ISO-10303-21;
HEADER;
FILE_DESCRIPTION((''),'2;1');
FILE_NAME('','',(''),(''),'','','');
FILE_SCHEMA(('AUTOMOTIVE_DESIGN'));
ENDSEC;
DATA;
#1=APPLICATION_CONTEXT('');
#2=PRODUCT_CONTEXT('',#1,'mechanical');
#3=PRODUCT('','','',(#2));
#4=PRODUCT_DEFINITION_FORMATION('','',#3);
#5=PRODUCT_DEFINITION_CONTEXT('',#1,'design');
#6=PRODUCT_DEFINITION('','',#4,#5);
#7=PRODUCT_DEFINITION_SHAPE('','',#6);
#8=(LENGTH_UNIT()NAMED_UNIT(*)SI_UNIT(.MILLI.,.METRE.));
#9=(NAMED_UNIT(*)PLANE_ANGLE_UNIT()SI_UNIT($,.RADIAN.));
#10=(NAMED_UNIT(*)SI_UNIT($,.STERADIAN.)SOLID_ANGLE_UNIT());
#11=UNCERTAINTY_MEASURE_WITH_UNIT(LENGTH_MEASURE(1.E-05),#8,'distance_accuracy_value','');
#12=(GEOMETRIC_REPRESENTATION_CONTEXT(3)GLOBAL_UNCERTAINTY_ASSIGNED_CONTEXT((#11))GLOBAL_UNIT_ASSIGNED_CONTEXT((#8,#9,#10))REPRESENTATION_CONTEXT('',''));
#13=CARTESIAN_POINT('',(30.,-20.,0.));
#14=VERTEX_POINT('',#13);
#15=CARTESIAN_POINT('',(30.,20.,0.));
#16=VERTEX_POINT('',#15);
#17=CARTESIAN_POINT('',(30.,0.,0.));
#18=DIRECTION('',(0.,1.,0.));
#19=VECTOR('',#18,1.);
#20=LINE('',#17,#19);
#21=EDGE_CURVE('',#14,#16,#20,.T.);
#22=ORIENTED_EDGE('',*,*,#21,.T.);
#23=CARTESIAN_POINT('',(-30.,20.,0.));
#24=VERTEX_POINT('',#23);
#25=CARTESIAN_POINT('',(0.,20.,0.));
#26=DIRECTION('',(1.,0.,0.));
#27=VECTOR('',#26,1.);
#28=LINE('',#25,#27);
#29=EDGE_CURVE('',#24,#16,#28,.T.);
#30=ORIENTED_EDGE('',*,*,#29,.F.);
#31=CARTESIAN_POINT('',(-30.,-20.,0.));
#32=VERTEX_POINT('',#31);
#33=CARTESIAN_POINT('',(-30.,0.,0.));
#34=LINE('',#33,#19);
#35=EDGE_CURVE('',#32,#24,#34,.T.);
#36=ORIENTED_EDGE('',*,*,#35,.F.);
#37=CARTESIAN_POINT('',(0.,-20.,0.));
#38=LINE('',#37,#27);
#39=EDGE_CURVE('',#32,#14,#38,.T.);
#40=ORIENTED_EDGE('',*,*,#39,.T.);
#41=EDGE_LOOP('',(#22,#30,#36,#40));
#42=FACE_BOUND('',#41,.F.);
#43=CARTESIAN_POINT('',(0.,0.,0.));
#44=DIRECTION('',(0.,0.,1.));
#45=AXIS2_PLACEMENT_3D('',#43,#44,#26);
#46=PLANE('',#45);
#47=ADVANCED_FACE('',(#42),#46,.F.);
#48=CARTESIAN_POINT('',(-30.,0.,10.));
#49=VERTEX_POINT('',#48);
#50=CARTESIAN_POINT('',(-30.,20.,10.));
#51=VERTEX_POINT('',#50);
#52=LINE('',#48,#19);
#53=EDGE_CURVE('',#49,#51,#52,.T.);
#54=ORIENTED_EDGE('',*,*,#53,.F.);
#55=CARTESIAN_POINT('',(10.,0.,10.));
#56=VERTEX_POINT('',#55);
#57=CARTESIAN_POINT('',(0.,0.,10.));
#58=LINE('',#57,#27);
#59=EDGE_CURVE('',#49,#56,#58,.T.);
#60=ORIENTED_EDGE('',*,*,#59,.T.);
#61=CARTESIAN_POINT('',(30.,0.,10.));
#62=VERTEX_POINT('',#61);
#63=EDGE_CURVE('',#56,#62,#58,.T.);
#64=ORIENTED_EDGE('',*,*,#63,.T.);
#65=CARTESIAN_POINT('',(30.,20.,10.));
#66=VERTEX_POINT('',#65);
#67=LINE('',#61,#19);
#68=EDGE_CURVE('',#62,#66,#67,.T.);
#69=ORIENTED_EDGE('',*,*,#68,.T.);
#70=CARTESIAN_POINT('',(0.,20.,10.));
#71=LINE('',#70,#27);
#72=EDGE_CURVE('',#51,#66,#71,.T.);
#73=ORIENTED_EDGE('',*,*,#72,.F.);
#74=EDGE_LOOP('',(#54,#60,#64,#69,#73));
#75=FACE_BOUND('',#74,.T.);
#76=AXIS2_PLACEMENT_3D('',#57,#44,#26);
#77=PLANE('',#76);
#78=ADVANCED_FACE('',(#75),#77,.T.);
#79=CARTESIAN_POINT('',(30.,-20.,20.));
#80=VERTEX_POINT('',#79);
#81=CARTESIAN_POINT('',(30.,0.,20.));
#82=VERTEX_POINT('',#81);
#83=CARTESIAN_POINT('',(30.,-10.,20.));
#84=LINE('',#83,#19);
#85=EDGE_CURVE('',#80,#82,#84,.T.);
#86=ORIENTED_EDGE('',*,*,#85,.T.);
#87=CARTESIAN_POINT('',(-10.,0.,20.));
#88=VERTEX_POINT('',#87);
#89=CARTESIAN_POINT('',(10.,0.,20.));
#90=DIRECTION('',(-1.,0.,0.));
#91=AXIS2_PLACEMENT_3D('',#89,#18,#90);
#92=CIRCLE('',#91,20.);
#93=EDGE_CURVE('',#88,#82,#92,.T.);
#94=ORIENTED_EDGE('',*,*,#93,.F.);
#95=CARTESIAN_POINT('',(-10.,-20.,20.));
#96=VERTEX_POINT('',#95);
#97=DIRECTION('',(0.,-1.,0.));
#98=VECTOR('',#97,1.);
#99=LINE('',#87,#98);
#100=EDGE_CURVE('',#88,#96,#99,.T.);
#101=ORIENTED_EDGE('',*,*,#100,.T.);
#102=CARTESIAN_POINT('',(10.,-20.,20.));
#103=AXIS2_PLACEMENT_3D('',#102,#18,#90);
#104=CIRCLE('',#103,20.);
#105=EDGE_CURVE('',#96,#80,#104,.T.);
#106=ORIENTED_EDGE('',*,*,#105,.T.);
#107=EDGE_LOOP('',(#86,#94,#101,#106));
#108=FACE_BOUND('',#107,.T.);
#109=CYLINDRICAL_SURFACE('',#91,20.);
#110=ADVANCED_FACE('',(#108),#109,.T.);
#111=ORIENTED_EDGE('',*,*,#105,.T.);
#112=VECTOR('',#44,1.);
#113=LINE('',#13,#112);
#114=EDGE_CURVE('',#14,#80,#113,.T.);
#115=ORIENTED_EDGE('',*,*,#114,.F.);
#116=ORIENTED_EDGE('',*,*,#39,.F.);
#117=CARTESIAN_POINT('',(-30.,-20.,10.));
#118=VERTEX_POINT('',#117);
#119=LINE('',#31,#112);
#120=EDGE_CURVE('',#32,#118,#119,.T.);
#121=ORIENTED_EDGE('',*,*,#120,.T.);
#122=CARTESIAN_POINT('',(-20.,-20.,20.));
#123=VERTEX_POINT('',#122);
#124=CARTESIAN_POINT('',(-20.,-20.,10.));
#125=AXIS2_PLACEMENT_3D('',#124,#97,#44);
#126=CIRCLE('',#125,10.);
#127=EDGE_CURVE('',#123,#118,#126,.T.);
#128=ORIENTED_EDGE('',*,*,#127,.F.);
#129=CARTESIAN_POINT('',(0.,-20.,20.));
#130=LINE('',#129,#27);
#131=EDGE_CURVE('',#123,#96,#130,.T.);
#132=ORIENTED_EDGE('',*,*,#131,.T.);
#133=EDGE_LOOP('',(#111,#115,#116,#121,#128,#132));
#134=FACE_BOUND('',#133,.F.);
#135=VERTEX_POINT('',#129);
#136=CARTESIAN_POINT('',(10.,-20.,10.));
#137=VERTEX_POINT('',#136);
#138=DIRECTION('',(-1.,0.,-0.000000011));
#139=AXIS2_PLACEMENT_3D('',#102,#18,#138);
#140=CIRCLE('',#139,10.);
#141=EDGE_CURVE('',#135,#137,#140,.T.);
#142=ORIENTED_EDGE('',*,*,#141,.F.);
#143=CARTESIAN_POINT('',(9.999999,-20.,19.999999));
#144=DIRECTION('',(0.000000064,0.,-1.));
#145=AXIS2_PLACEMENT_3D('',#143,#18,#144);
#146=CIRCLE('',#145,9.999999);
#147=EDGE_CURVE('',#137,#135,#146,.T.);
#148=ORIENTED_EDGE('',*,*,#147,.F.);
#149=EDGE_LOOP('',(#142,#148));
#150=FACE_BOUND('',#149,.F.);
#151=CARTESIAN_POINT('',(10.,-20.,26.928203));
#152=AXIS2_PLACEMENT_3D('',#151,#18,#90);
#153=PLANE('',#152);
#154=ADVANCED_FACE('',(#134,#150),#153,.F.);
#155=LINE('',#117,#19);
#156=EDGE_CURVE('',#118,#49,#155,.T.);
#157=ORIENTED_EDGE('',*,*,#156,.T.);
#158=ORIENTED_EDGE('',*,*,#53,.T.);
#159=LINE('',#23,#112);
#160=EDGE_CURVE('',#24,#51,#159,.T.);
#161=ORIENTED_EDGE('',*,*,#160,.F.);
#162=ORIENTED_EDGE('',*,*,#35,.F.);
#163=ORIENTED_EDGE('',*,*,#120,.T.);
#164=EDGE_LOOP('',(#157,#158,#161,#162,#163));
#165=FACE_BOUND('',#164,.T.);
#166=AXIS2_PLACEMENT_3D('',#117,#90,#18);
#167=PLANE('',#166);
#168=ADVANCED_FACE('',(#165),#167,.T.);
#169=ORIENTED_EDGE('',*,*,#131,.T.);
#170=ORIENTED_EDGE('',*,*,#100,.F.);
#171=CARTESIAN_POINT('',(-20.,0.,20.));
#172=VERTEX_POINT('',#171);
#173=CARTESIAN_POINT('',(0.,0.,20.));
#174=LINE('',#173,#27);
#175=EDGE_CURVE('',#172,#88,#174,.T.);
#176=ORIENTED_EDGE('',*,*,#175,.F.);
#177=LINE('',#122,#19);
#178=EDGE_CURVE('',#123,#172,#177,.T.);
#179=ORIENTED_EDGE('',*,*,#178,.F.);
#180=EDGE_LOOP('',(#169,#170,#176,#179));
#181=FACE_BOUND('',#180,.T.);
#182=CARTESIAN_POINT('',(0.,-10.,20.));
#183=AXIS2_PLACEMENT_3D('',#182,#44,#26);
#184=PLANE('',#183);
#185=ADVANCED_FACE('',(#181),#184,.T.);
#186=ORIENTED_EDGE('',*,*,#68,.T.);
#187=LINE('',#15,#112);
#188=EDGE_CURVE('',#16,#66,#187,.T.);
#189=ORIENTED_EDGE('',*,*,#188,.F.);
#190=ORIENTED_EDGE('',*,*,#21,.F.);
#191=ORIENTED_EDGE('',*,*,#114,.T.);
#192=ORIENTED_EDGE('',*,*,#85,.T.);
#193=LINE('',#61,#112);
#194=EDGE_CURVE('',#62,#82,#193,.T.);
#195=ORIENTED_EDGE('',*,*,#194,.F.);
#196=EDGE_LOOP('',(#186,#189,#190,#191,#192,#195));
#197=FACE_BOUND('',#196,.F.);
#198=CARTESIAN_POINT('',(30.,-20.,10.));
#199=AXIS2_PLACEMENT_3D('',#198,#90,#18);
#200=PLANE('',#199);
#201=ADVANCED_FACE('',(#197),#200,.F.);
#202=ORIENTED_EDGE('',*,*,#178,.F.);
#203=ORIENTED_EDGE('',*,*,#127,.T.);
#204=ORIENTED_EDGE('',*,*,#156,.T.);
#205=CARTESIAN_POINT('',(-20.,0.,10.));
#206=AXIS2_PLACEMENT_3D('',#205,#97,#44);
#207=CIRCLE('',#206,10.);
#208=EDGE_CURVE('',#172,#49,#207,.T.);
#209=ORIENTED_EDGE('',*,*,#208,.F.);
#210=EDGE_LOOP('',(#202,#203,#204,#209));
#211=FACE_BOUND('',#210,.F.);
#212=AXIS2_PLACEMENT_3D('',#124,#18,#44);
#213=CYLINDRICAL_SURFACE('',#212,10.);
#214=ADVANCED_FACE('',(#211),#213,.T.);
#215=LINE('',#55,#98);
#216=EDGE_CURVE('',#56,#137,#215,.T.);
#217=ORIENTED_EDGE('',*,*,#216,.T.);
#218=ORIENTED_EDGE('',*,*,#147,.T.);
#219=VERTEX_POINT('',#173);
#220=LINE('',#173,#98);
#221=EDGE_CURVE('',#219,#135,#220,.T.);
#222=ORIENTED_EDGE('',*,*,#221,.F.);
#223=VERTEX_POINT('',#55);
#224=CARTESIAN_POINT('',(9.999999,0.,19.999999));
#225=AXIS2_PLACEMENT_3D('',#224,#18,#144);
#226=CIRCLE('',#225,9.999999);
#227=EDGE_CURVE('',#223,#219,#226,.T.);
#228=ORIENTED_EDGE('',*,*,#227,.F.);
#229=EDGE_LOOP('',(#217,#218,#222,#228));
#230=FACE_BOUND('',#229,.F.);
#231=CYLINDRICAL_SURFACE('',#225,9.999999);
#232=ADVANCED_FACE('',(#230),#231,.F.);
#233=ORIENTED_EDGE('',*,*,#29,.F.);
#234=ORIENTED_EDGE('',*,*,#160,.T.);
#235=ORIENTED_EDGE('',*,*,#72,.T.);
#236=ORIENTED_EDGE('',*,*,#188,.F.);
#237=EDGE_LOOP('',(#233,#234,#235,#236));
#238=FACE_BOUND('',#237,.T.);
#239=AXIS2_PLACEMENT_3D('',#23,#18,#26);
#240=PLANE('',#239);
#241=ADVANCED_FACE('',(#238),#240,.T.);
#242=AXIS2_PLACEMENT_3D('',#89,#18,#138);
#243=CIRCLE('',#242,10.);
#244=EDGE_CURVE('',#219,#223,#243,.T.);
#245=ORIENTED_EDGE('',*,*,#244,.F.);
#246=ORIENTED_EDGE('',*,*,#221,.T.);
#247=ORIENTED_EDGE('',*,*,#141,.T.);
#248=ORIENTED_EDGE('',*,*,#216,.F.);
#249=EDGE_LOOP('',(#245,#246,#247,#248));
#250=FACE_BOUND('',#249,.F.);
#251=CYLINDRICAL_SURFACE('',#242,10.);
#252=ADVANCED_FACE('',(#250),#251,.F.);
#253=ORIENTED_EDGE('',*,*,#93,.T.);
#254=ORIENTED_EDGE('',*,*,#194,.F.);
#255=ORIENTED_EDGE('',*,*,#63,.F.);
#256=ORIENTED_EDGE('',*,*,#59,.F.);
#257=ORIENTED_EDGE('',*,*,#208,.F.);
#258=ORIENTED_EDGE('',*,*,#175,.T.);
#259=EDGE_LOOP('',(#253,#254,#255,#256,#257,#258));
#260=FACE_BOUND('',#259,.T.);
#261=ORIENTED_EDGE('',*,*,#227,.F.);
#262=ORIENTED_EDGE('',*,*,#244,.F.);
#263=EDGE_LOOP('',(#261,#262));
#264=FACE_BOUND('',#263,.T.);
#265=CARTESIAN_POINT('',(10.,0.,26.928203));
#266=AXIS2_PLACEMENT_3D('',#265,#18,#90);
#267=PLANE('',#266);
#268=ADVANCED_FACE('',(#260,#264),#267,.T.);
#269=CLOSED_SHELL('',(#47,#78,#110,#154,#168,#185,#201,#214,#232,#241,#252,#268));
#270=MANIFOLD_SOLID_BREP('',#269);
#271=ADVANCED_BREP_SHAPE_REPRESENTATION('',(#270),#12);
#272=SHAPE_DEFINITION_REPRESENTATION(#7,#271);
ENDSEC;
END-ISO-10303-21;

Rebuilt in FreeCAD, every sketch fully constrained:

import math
import FreeCAD as App
import Part
import Sketcher
Q = App.Units.Quantity


def edges_at(feature, points):
    """Names of the edges that pass closest to the given points."""
    edges = feature.Shape.Edges
    near = lambda p: min(range(len(edges)), key=lambda i: edges[i].distToShape(Part.Vertex(*p))[0])
    return sorted({f"Edge{near(p) + 1}" for p in points})

doc = App.newDocument("Part")
params = doc.addObject("Spreadsheet::Sheet", "Params")
for row, (alias, value) in enumerate([
    ("sketch1_width", "60 mm"),
    ("sketch1_height", "40 mm"),
    ("pad1_length", "10 mm"),
    ("sketch2_width", "60 mm"),
    ("sketch2_height", "20 mm"),
    ("pad2_length", "10 mm"),
    ("sketch3_radius", "20 mm"),
    ("pad3_length", "20 mm"),
    ("fillet_radius", "10 mm"),
    ("sketch4_radius", "9.999999 mm"),
    ("pocket1_length", "20 mm"),
], start=1):
    params.set(f"A{row}", alias)
    params.set(f"B{row}", "=" + value)
    params.setAlias(f"B{row}", alias)

body = doc.addObject("PartDesign::Body", "Body")

sketch1 = doc.addObject("Sketcher::SketchObject", "Sketch")
body.addObject(sketch1)
sketch1.AttachmentSupport = (doc.XY_Plane, [""])
sketch1.MapMode = "FlatFace"
sketch1.addGeometry(Part.LineSegment(App.Vector(-30, 20, 0), App.Vector(-30, -20, 0)), False)
sketch1.addGeometry(Part.LineSegment(App.Vector(-30, -20, 0), App.Vector(30, -20, 0)), False)
sketch1.addGeometry(Part.LineSegment(App.Vector(30, -20, 0), App.Vector(30, 20, 0)), False)
sketch1.addGeometry(Part.LineSegment(App.Vector(30, 20, 0), App.Vector(-30, 20, 0)), False)
sketch1.addConstraint(Sketcher.Constraint("Coincident", 0, 2, 1, 1))
sketch1.addConstraint(Sketcher.Constraint("Coincident", 1, 2, 2, 1))
sketch1.addConstraint(Sketcher.Constraint("Coincident", 2, 2, 3, 1))
sketch1.addConstraint(Sketcher.Constraint("Coincident", 3, 2, 0, 1))
sketch1.addConstraint(Sketcher.Constraint("Vertical", 0))
sketch1.addConstraint(Sketcher.Constraint("Horizontal", 1))
sketch1.addConstraint(Sketcher.Constraint("Vertical", 2))
sketch1.addConstraint(Sketcher.Constraint("Horizontal", 3))
sketch1.addConstraint(Sketcher.Constraint("Symmetric", 0, 2, 2, 2, -1, 1))
sketch1.addConstraint(Sketcher.Constraint("DistanceX", 1, 1, 1, 2, Q("60 mm")))
sketch1.addConstraint(Sketcher.Constraint("DistanceY", 0, 2, 0, 1, Q("40 mm")))
sketch1.setExpression("Constraints[9]", "Params.sketch1_width")
sketch1.setExpression("Constraints[10]", "Params.sketch1_height")
pad1 = doc.addObject("PartDesign::Pad", "Pad")
body.addObject(pad1)
pad1.Profile = sketch1
pad1.setExpression("Length", "Params.pad1_length")

sketch2 = doc.addObject("Sketcher::SketchObject", "Sketch001")
body.addObject(sketch2)
sketch2.AttachmentSupport = (doc.XY_Plane, [""])
sketch2.MapMode = "FlatFace"
sketch2.AttachmentOffset = App.Placement(App.Vector(0, 0, 10), App.Rotation())
sketch2.addGeometry(Part.LineSegment(App.Vector(-30, 0, 0), App.Vector(-30, -20, 0)), False)
sketch2.addGeometry(Part.LineSegment(App.Vector(-30, -20, 0), App.Vector(30, -20, 0)), False)
sketch2.addGeometry(Part.LineSegment(App.Vector(30, -20, 0), App.Vector(30, 0, 0)), False)
sketch2.addGeometry(Part.LineSegment(App.Vector(30, 0, 0), App.Vector(-30, 0, 0)), False)
sketch2.addConstraint(Sketcher.Constraint("Coincident", 0, 2, 1, 1))
sketch2.addConstraint(Sketcher.Constraint("Coincident", 1, 2, 2, 1))
sketch2.addConstraint(Sketcher.Constraint("Coincident", 2, 2, 3, 1))
sketch2.addConstraint(Sketcher.Constraint("Coincident", 3, 2, 0, 1))
sketch2.addConstraint(Sketcher.Constraint("Vertical", 0))
sketch2.addConstraint(Sketcher.Constraint("Horizontal", 1))
sketch2.addConstraint(Sketcher.Constraint("Vertical", 2))
sketch2.addConstraint(Sketcher.Constraint("Horizontal", 3))
sketch2.addConstraint(Sketcher.Constraint("Symmetric", 2, 2, 3, 2, -1, 1))
sketch2.addConstraint(Sketcher.Constraint("DistanceX", 1, 1, 1, 2, Q("60 mm")))
sketch2.addConstraint(Sketcher.Constraint("DistanceY", 0, 2, 0, 1, Q("20 mm")))
sketch2.setExpression("Constraints[9]", "Params.sketch2_width")
sketch2.setExpression("Constraints[10]", "Params.sketch2_height")
pad2 = doc.addObject("PartDesign::Pad", "Pad001")
body.addObject(pad2)
pad2.Profile = sketch2
pad2.setExpression("Length", "Params.pad2_length")

sketch3 = doc.addObject("Sketcher::SketchObject", "Sketch002")
body.addObject(sketch3)
sketch3.AttachmentSupport = (doc.XZ_Plane, [""])
sketch3.MapMode = "FlatFace"
sketch3.addGeometry(Part.LineSegment(App.Vector(30, 20, 0), App.Vector(-10, 20, 0)), False)
sketch3.addGeometry(Part.ArcOfCircle(Part.Circle(App.Vector(10, 20, 0), App.Vector(0, 0, 1), 20), math.radians(0), math.radians(180)), False)
sketch3.addConstraint(Sketcher.Constraint("Coincident", 0, 1, 1, 1))
sketch3.addConstraint(Sketcher.Constraint("Coincident", 1, 2, 0, 2))
sketch3.addConstraint(Sketcher.Constraint("Horizontal", 0))
sketch3.addConstraint(Sketcher.Constraint("Horizontal", 1, 3, 0, 1))
sketch3.addConstraint(Sketcher.Constraint("Radius", 1, Q("20 mm")))
sketch3.addConstraint(Sketcher.Constraint("DistanceX", -1, 1, 1, 3, Q("10 mm")))
sketch3.addConstraint(Sketcher.Constraint("DistanceY", -1, 1, 1, 3, Q("20 mm")))
sketch3.setExpression("Constraints[4]", "Params.sketch3_radius")
pad3 = doc.addObject("PartDesign::Pad", "Pad002")
body.addObject(pad3)
pad3.Profile = sketch3
pad3.setExpression("Length", "Params.pad3_length")
doc.recompute()

fillet = doc.addObject("PartDesign::Fillet", "Fillet")
body.addObject(fillet)
fillet.Base = (pad3, edges_at(pad3, [(-30, -10, 20)]))
fillet.setExpression("Radius", "Params.fillet_radius")

sketch4 = doc.addObject("Sketcher::SketchObject", "Sketch003")
body.addObject(sketch4)
sketch4.AttachmentSupport = (doc.XZ_Plane, [""])
sketch4.MapMode = "FlatFace"
sketch4.addGeometry(Part.ArcOfCircle(Part.Circle(App.Vector(10, 20, 0), App.Vector(0, 0, 1), 10), math.radians(180), math.radians(270)), False)
sketch4.addGeometry(Part.ArcOfCircle(Part.Circle(App.Vector(10, 20, 0), App.Vector(0, 0, 1), 10), math.radians(-90), math.radians(180)), False)
sketch4.addConstraint(Sketcher.Constraint("Tangent", 0, 1, 1, 2))
sketch4.addConstraint(Sketcher.Constraint("Coincident", 1, 1, 0, 2))
sketch4.addConstraint(Sketcher.Constraint("PointOnObject", 0, 1, -2))
sketch4.addConstraint(Sketcher.Constraint("Horizontal", 1, 3, 0, 1))
sketch4.addConstraint(Sketcher.Constraint("Vertical", 0, 3, 1, 1))
sketch4.addConstraint(Sketcher.Constraint("Radius", 0, Q("9.999999 mm")))
sketch4.addConstraint(Sketcher.Constraint("DistanceY", -1, 1, 0, 3, Q("19.999999 mm")))
sketch4.setExpression("Constraints[5]", "Params.sketch4_radius")
pocket1 = doc.addObject("PartDesign::Pocket", "Pocket")
body.addObject(pocket1)
pocket1.Profile = sketch4
pocket1.setExpression("Length", "Params.pocket1_length")
pocket1.Reversed = True

doc.recompute()
